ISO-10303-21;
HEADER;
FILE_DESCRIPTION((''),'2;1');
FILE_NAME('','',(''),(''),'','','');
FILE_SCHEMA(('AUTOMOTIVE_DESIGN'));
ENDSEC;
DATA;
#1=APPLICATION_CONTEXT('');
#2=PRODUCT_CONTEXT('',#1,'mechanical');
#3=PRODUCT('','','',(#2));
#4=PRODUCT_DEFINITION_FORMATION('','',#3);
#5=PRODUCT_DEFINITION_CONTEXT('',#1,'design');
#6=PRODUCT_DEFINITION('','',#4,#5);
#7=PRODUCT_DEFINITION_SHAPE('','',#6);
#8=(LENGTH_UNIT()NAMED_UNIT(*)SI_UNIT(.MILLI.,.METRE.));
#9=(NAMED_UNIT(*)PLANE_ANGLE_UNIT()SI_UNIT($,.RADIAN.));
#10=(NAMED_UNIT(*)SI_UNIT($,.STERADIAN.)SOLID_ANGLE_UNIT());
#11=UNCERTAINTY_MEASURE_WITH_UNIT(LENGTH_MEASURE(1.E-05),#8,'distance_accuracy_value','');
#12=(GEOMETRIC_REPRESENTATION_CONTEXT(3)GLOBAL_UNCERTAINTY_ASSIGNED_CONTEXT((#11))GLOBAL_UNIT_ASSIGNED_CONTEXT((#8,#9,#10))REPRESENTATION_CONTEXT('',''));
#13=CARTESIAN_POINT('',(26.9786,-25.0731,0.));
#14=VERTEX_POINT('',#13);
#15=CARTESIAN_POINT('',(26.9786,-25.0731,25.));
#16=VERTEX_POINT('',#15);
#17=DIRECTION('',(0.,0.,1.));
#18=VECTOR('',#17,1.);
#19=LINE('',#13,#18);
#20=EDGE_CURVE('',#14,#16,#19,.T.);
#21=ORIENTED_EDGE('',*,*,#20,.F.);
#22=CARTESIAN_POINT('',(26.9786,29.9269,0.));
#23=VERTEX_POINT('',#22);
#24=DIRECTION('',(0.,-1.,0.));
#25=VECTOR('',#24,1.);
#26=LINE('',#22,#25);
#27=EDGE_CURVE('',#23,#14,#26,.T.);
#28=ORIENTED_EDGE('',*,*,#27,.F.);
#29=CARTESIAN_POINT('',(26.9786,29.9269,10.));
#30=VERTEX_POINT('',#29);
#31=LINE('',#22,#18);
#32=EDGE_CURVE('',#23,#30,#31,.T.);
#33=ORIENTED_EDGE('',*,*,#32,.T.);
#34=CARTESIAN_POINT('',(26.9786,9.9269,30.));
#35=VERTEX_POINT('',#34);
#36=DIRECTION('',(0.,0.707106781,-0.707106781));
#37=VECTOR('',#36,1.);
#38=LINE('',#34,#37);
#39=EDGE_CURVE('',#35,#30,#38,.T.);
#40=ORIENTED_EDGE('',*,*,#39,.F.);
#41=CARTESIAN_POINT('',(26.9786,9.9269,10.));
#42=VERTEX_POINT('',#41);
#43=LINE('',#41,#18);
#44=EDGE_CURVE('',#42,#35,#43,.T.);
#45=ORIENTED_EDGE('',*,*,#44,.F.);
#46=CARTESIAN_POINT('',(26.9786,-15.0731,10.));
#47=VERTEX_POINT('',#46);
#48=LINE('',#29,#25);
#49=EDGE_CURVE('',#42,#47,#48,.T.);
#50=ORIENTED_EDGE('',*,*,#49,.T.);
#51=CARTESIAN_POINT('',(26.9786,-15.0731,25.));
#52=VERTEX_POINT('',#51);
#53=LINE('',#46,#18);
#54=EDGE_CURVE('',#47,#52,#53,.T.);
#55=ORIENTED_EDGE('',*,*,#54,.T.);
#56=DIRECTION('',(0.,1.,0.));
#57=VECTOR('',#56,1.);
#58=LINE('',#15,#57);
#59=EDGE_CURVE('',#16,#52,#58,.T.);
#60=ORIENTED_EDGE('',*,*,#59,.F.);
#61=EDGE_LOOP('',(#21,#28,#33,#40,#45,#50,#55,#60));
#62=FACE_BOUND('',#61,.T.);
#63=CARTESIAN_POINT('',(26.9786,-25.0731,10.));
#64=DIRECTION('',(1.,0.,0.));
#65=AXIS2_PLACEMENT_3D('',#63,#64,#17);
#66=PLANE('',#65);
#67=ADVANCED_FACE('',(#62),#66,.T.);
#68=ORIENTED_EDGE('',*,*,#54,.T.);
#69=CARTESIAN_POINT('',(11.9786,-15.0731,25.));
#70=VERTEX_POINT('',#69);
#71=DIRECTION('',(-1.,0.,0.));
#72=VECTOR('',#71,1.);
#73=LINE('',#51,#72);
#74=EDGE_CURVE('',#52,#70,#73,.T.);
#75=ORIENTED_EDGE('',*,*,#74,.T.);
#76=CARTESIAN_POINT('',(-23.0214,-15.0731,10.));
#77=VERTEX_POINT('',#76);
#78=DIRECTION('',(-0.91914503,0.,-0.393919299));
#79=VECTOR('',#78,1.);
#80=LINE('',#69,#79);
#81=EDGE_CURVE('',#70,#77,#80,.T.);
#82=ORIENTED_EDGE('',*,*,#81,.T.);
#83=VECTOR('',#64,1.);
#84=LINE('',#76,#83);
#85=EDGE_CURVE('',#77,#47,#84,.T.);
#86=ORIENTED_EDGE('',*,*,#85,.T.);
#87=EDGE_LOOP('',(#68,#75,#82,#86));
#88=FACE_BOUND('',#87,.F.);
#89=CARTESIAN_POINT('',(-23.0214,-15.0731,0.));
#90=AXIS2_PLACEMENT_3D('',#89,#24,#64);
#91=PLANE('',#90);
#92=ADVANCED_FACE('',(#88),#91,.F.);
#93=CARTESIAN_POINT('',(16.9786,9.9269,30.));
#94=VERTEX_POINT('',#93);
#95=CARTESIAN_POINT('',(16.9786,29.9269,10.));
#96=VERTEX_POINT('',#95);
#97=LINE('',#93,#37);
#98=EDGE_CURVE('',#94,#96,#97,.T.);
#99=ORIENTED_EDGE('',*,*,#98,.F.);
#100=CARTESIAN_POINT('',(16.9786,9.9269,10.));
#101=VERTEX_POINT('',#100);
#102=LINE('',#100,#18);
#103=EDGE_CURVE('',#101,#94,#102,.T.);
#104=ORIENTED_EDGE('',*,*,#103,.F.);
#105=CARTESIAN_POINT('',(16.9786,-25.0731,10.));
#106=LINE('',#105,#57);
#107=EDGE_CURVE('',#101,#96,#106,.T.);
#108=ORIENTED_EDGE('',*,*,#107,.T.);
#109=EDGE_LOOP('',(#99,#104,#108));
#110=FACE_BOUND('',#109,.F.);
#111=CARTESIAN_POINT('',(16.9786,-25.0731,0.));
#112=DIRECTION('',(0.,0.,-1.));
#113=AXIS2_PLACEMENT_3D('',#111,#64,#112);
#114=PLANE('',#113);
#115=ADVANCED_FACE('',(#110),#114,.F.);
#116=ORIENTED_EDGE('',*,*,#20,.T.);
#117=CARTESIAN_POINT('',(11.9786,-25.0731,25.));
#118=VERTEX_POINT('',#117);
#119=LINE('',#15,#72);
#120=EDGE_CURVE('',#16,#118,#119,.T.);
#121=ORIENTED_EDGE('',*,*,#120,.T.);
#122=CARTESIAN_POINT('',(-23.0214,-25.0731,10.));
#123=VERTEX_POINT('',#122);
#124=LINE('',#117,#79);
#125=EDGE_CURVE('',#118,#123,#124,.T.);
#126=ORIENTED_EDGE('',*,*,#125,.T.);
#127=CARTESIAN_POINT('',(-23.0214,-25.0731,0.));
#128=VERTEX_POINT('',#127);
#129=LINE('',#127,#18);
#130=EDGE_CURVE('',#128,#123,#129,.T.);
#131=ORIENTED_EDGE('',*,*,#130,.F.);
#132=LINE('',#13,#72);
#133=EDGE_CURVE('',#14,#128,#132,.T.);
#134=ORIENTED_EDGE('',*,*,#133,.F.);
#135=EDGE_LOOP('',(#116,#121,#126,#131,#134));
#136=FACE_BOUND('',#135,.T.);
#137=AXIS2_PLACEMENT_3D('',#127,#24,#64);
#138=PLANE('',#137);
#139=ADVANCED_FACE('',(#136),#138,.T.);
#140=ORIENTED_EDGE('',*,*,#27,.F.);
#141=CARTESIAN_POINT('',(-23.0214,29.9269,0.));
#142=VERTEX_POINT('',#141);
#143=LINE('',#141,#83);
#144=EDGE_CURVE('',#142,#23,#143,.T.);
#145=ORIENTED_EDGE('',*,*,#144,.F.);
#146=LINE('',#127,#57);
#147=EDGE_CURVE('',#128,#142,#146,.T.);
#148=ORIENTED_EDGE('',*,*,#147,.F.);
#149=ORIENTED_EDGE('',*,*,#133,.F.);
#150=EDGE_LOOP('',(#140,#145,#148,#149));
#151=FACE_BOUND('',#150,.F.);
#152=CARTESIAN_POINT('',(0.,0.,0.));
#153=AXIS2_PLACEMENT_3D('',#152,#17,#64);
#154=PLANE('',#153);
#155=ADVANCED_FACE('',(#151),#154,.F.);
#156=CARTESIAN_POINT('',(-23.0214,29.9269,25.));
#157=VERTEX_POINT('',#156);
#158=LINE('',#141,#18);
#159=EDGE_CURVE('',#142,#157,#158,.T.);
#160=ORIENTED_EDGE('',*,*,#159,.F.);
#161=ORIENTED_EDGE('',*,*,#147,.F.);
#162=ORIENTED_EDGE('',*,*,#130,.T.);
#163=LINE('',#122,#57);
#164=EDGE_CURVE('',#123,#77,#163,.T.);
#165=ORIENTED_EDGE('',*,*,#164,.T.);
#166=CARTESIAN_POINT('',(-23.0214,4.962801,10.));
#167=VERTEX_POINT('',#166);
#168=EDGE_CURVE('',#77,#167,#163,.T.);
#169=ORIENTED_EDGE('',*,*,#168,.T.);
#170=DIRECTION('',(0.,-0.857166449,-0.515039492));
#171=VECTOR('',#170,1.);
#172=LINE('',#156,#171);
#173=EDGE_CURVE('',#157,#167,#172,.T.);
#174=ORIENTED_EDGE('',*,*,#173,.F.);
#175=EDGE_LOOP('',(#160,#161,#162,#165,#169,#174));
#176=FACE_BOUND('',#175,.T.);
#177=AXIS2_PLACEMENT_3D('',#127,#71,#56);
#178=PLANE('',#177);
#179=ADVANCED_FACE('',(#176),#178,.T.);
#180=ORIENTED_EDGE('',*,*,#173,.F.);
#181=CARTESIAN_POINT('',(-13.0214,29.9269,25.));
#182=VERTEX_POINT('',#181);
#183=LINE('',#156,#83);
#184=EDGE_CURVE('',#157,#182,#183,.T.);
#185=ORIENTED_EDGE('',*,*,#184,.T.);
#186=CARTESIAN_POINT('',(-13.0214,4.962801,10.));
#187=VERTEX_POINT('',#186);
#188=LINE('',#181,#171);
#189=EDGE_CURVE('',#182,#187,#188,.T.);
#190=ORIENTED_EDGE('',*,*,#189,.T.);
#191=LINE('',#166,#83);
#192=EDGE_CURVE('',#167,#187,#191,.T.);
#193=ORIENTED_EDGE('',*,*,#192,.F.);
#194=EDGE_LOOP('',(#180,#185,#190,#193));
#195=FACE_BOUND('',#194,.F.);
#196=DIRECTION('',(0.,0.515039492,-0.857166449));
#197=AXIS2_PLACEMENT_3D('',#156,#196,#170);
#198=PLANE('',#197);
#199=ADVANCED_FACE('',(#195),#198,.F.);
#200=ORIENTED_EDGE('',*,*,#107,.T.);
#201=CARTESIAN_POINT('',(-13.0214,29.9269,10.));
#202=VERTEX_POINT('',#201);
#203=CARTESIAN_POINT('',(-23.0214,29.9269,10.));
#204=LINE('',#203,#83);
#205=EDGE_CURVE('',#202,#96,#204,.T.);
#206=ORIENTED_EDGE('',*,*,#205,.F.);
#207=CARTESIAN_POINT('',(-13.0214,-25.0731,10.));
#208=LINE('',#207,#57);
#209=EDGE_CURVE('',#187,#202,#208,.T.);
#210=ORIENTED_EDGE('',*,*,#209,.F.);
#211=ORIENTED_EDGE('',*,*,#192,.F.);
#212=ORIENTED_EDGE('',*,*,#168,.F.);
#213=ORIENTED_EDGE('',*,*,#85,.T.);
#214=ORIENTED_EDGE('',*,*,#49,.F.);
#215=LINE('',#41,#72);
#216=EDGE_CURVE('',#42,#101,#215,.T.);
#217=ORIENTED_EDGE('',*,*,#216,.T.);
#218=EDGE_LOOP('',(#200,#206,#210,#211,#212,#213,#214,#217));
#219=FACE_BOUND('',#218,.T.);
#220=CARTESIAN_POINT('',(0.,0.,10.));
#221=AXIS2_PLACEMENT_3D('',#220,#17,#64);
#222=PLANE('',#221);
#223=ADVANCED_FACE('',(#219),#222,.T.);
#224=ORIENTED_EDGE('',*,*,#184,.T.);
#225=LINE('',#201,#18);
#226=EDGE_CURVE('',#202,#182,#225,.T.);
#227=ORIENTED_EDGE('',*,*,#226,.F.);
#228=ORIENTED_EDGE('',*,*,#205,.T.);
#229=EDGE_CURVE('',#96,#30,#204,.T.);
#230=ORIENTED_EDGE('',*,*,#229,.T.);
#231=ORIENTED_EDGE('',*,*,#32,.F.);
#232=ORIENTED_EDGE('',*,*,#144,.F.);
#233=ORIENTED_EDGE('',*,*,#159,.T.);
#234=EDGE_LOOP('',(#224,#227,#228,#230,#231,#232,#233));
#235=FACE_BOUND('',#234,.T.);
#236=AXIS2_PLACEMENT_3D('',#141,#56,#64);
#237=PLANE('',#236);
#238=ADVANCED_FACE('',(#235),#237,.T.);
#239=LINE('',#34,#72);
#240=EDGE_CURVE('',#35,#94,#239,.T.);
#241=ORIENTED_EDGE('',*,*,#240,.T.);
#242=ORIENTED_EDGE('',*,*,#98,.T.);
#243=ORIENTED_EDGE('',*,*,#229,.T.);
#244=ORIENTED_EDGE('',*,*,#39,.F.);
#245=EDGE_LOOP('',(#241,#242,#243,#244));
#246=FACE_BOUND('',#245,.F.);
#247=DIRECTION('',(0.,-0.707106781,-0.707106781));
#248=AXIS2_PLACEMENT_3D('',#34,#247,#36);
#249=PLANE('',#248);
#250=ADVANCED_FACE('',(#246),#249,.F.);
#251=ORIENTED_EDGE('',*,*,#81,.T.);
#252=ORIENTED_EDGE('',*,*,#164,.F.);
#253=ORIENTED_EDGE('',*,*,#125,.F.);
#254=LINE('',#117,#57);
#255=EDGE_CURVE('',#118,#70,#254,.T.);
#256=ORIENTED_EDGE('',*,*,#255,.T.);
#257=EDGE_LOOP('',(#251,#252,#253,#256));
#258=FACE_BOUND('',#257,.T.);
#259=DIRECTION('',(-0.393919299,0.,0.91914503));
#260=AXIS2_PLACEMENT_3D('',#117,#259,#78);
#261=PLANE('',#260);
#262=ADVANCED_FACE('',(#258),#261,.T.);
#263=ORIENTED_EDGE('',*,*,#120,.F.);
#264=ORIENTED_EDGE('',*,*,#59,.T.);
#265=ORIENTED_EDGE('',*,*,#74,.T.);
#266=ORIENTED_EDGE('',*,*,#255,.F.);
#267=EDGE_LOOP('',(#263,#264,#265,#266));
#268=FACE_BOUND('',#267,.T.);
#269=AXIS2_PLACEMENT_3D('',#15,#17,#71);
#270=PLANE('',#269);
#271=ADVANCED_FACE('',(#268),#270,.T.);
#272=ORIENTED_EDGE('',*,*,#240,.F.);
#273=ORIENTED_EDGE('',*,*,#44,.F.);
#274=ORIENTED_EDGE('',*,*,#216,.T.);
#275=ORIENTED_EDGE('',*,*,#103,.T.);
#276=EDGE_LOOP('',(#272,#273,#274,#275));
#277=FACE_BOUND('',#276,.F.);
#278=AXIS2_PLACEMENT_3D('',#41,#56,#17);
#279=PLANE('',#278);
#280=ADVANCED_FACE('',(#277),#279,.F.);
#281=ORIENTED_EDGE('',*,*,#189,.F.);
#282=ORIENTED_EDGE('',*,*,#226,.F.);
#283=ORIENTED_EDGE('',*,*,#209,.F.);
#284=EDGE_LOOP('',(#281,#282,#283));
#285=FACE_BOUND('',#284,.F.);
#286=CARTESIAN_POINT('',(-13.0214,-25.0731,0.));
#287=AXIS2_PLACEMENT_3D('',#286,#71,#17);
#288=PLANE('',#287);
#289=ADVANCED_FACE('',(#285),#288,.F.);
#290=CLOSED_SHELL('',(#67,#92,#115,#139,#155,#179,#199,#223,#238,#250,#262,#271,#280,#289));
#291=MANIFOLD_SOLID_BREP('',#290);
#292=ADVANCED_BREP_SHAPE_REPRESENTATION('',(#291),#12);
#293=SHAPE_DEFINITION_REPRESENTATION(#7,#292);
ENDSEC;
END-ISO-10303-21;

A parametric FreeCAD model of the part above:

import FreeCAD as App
import Part
import Sketcher
Q = App.Units.Quantity

doc = App.newDocument("Part")
body = doc.addObject("PartDesign::Body", "Body")

sketch1 = body.newObject("Sketcher::SketchObject", "Sketch")
sketch1.AttachmentSupport = (doc.getObject("XY_Plane"), [""])
sketch1.MapMode = "FlatFace"
sketch1.addGeometry([
    Part.LineSegment(App.Vector(27, 30, 0), App.Vector(-23, 30, 0)),
    Part.LineSegment(App.Vector(-23, 30, 0), App.Vector(-23, -25, 0)),
    Part.LineSegment(App.Vector(-23, -25, 0), App.Vector(27, -25, 0)),
    Part.LineSegment(App.Vector(27, -25, 0), App.Vector(27, 30, 0)),
], False)
sketch1.addConstraint([
    Sketcher.Constraint("Coincident", 0, 2, 1, 1),
    Sketcher.Constraint("Coincident", 1, 2, 2, 1),
    Sketcher.Constraint("Coincident", 2, 2, 3, 1),
    Sketcher.Constraint("Coincident", 3, 2, 0, 1),
    Sketcher.Constraint("Horizontal", 0),
    Sketcher.Constraint("Vertical", 1),
    Sketcher.Constraint("Horizontal", 2),
    Sketcher.Constraint("Vertical", 3),
    Sketcher.Constraint("DistanceX", 0, 2, 0, 1, Q("50 mm")),
    Sketcher.Constraint("DistanceY", 1, 2, 1, 1, Q("55 mm")),
    Sketcher.Constraint("DistanceY", -1, 1, 0, 2, Q("29.927 mm")),
    Sketcher.Constraint("DistanceX", 0, 2, -1, 1, Q("23.0214 mm")),
])
pad1 = body.newObject("PartDesign::Pad", "Pad")
pad1.Profile = sketch1
pad1.Length = 10

sketch2 = body.newObject("Sketcher::SketchObject", "Sketch001")
sketch2.AttachmentSupport = (doc.getObject("YZ_Plane"), [""])
sketch2.MapMode = "FlatFace"
sketch2.AttachmentOffset = App.Placement(App.Vector(0, 0, -23.0214), App.Rotation())
sketch2.addGeometry([
    Part.LineSegment(App.Vector(30, 10, 0), App.Vector(5, 10, 0)),
    Part.LineSegment(App.Vector(5, 10, 0), App.Vector(30, 25, 0)),
    Part.LineSegment(App.Vector(30, 25, 0), App.Vector(30, 10, 0)),
], False)
sketch2.addConstraint([
    Sketcher.Constraint("Coincident", 0, 2, 1, 1),
    Sketcher.Constraint("Coincident", 1, 2, 2, 1),
    Sketcher.Constraint("Coincident", 2, 2, 0, 1),
    Sketcher.Constraint("Horizontal", 0),
    Sketcher.Constraint("Vertical", 2),
    Sketcher.Constraint("DistanceY", 2, 2, 2, 1, Q("15 mm")),
    Sketcher.Constraint("Angle", 1, Q("31 deg")),
    Sketcher.Constraint("DistanceY", -1, 1, 0, 2, Q("10 mm")),
    Sketcher.Constraint("DistanceX", -1, 1, 1, 2, Q("29.927 mm")),
])
pad2 = body.newObject("PartDesign::Pad", "Pad001")
pad2.Profile = sketch2
pad2.Length = 10

sketch3 = body.newObject("Sketcher::SketchObject", "Sketch002")
sketch3.AttachmentSupport = (doc.getObject("YZ_Plane"), [""])
sketch3.MapMode = "FlatFace"
sketch3.AttachmentOffset = App.Placement(App.Vector(0, 0, 26.9786), App.Rotation())
sketch3.addGeometry([
    Part.LineSegment(App.Vector(10, 30, 0), App.Vector(10, 10, 0)),
    Part.LineSegment(App.Vector(10, 10, 0), App.Vector(30, 10, 0)),
    Part.LineSegment(App.Vector(30, 10, 0), App.Vector(10, 30, 0)),
], False)
sketch3.addConstraint([
    Sketcher.Constraint("Coincident", 0, 2, 1, 1),
    Sketcher.Constraint("Coincident", 1, 2, 2, 1),
    Sketcher.Constraint("Coincident", 2, 2, 0, 1),
    Sketcher.Constraint("Vertical", 0),
    Sketcher.Constraint("Horizontal", 1),
    Sketcher.Constraint("Equal", 1, 0),
    Sketcher.Constraint("DistanceX", 1, 1, 1, 2, Q("20 mm")),
    Sketcher.Constraint("DistanceY", -1, 1, 0, 2, Q("10 mm")),
    Sketcher.Constraint("DistanceX", -1, 1, 0, 2, Q("9.927 mm")),
])
pad3 = body.newObject("PartDesign::Pad", "Pad002")
pad3.Profile = sketch3
pad3.Length = 10
pad3.Reversed = True

sketch4 = body.newObject("Sketcher::SketchObject", "Sketch003")
sketch4.AttachmentSupport = (doc.getObject("XZ_Plane"), [""])
sketch4.MapMode = "FlatFace"
sketch4.AttachmentOffset = App.Placement(App.Vector(0, 0, 25.0731), App.Rotation())
sketch4.addGeometry([
    Part.LineSegment(App.Vector(-23, 10, 0), App.Vector(27, 10, 0)),
    Part.LineSegment(App.Vector(27, 10, 0), App.Vector(27, 25, 0)),
    Part.LineSegment(App.Vector(27, 25, 0), App.Vector(12, 25, 0)),
    Part.LineSegment(App.Vector(12, 25, 0), App.Vector(-23, 10, 0)),
], False)
sketch4.addConstraint([
    Sketcher.Constraint("Coincident", 0, 2, 1, 1),
    Sketcher.Constraint("Coincident", 1, 2, 2, 1),
    Sketcher.Constraint("Coincident", 2, 2, 3, 1),
    Sketcher.Constraint("Coincident", 3, 2, 0, 1),
    Sketcher.Constraint("Horizontal", 0),
    Sketcher.Constraint("Vertical", 1),
    Sketcher.Constraint("Horizontal", 2),
    Sketcher.Constraint("Equal", 2, 1),
    Sketcher.Constraint("DistanceX", 2, 2, 2, 1, Q("15 mm")),
    Sketcher.Constraint("DistanceX", 3, 2, 2, 2, Q("35 mm")),
    Sketcher.Constraint("DistanceY", -1, 1, 0, 2, Q("10 mm")),
    Sketcher.Constraint("DistanceX", -1, 1, 0, 2, Q("26.9786 mm")),
])
pad4 = body.newObject("PartDesign::Pad", "Pad003")
pad4.Profile = sketch4
pad4.Length = 10
pad4.Reversed = True

doc.recompute()
